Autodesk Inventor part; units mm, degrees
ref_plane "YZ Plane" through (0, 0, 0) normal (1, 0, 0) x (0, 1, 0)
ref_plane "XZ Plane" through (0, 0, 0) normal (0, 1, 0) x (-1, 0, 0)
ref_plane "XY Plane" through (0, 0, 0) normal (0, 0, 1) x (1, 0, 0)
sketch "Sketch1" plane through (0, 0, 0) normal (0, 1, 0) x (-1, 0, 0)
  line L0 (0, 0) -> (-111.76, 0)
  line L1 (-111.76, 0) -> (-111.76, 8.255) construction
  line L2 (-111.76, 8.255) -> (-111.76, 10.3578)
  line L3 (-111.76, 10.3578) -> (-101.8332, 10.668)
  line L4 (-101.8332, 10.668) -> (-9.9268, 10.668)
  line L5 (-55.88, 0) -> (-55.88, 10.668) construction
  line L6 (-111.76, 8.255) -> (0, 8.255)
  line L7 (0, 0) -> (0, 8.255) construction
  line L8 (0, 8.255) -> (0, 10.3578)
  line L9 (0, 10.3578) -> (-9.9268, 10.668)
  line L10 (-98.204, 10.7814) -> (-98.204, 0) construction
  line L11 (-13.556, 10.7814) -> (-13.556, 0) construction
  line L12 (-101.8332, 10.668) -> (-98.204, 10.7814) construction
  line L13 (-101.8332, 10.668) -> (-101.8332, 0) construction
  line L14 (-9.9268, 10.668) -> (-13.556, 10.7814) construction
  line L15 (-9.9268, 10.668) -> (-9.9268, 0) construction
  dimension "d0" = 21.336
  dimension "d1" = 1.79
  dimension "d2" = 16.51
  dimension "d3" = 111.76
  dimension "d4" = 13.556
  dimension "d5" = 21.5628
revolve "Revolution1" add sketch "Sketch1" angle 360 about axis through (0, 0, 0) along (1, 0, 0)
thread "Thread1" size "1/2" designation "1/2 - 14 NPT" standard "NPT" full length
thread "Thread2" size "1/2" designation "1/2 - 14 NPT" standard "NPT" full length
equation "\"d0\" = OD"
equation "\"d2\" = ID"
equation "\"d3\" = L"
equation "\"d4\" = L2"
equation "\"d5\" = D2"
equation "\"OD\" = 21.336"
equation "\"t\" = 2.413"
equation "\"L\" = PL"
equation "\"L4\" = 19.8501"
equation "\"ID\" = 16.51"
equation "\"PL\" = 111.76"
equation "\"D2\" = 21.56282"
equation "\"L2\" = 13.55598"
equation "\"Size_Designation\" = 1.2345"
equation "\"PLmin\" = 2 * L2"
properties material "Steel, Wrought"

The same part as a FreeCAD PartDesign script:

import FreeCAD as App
import Part
import Sketcher
from FreeCAD import Vector
Q = App.Units.Quantity


def add_polygon(sketch, points):
    """Adds a closed chain of lines whose ends are joined by coincident constraints."""
    first, n = sketch.GeometryCount, len(points)
    for a, b in zip(points, points[1:] + points[:1]):
        sketch.addGeometry(Part.LineSegment(App.Vector(*a, 0), App.Vector(*b, 0)), False)
    for i in range(n):
        sketch.addConstraint(Sketcher.Constraint("Coincident", first + i, 2, first + (i + 1) % n, 1))

doc = App.newDocument("Part")
body = doc.addObject("PartDesign::Body", "Body")

sketch1 = body.newObject("Sketcher::SketchObject", "Sketch")
sketch1.AttachmentSupport = (doc.getObject("XZ_Plane"), [""])
sketch1.MapMode = "FlatFace"
add_polygon(sketch1, [(111.8, 10.4), (111.8, 8.3), (0, 8.3), (0, 10.4), (9.9, 10.7), (101.8, 10.7)])
sketch1.addConstraint(Sketcher.Constraint("Vertical", 0))
sketch1.addConstraint(Sketcher.Constraint("Horizontal", 1))
sketch1.addConstraint(Sketcher.Constraint("Vertical", 2))
sketch1.addConstraint(Sketcher.Constraint("Horizontal", 4))
sketch1.addConstraint(Sketcher.Constraint("PointOnObject", 1, 2, -2))
sketch1.addConstraint(Sketcher.Constraint("Horizontal", 2, 2, 5, 2))
sketch1.addConstraint(Sketcher.Constraint("Equal", 3, 5))
sketch1.addConstraint(Sketcher.Constraint("DistanceX", 1, 2, 1, 1, Q("4.4 in")))
sketch1.addConstraint(Sketcher.Constraint("Angle", 3, Q("1.7898 deg")))
sketch1.addConstraint(Sketcher.Constraint("DistanceY", -1, 1, 3, 2, Q("0.42 in")))
sketch1.addConstraint(Sketcher.Constraint("Distance", 3, Q("0.391 in")))
sketch1.addConstraint(Sketcher.Constraint("DistanceY", -1, 1, 0, 2, Q("0.325 in")))
revolution = body.newObject("PartDesign::Revolution", "Revolution")
revolution.Profile = sketch1
revolution.ReferenceAxis = (sketch1, ["H_Axis"])
revolution.Angle = 360

doc.recompute()
